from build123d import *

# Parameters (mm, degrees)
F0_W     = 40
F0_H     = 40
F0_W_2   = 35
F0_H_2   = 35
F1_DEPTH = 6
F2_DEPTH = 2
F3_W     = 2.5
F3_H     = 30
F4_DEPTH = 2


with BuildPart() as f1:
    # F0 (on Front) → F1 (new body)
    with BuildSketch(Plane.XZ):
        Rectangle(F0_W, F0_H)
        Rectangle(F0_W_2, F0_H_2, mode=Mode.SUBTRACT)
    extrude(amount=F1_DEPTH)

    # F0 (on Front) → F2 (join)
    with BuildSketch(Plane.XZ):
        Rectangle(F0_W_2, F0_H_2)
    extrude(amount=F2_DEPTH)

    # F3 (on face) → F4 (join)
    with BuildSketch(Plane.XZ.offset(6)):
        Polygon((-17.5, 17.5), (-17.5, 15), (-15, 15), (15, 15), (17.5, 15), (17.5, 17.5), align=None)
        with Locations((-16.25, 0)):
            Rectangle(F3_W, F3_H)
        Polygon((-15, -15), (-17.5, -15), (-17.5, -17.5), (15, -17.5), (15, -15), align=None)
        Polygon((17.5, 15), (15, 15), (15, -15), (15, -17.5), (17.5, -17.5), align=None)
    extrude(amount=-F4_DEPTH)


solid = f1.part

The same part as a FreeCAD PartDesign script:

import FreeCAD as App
import Part
import Sketcher
Q = App.Units.Quantity


def add_polygon(sketch, points):
    """Adds a closed chain of lines whose ends are joined by coincident constraints."""
    first, n = sketch.GeometryCount, len(points)
    for a, b in zip(points, points[1:] + points[:1]):
        sketch.addGeometry(Part.LineSegment(App.Vector(*a, 0), App.Vector(*b, 0)), False)
    for i in range(n):
        sketch.addConstraint(Sketcher.Constraint("Coincident", first + i, 2, first + (i + 1) % n, 1))

doc = App.newDocument("Part")
params = doc.addObject("Spreadsheet::Sheet", "Params")
for row, (alias, value) in enumerate([
    ("sketch1_width", "40 mm"),
    ("sketch1_width2", "35 mm"),
    ("pad1_length", "6 mm"),
    ("sketch2_width", "35 mm"),
    ("pad2_length", "2 mm"),
    ("sketch3_width", "35 mm"),
    ("sketch3_width2", "30 mm"),
    ("pad3_length", "2 mm"),
], start=1):
    params.set(f"A{row}", alias)
    params.set(f"B{row}", "=" + value)
    params.setAlias(f"B{row}", alias)

body = doc.addObject("PartDesign::Body", "Body")

# Sketch on XZ plane
sketch1 = body.newObject("Sketcher::SketchObject", "Sketch")
sketch1.AttachmentSupport = (doc.getObject("XZ_Plane"), [""])
sketch1.MapMode = "FlatFace"
add_polygon(sketch1, [(-20, 20), (-20, -20), (20, -20), (20, 20)])  # lines 0-3
add_polygon(sketch1, [(18, -18), (-18, -18), (-18, 18), (18, 18)])  # lines 4-7
sketch1.addConstraint(Sketcher.Constraint("Vertical", 0))
sketch1.addConstraint(Sketcher.Constraint("Horizontal", 1))
sketch1.addConstraint(Sketcher.Constraint("Vertical", 2))
sketch1.addConstraint(Sketcher.Constraint("Horizontal", 3))
sketch1.addConstraint(Sketcher.Constraint("Horizontal", 4))
sketch1.addConstraint(Sketcher.Constraint("Vertical", 5))
sketch1.addConstraint(Sketcher.Constraint("Horizontal", 6))
sketch1.addConstraint(Sketcher.Constraint("Vertical", 7))
sketch1.addConstraint(Sketcher.Constraint("Symmetric", 0, 2, 2, 2, -1, 1))
sketch1.addConstraint(Sketcher.Constraint("Symmetric", 4, 2, 6, 2, -1, 1))
sketch1.addConstraint(Sketcher.Constraint("Equal", 3, 0))
sketch1.addConstraint(Sketcher.Constraint("Equal", 6, 5))
sketch1.addConstraint(Sketcher.Constraint("DistanceX", 1, 1, 1, 2, Q("40 mm")))
sketch1.addConstraint(Sketcher.Constraint("DistanceX", 4, 2, 4, 1, Q("35 mm")))
sketch1.setExpression("Constraints[20]", "Params.sketch1_width")
sketch1.setExpression("Constraints[21]", "Params.sketch1_width2")
pad1 = body.newObject("PartDesign::Pad", "Pad")
pad1.Profile = sketch1
pad1.setExpression("Length", "Params.pad1_length")

# Sketch on XZ plane
sketch2 = body.newObject("Sketcher::SketchObject", "Sketch001")
sketch2.AttachmentSupport = (doc.getObject("XZ_Plane"), [""])
sketch2.MapMode = "FlatFace"
add_polygon(sketch2, [(-18, 18), (-18, -18), (18, -18), (18, 18)])  # lines 0-3
sketch2.addConstraint(Sketcher.Constraint("Vertical", 0))
sketch2.addConstraint(Sketcher.Constraint("Horizontal", 1))
sketch2.addConstraint(Sketcher.Constraint("Vertical", 2))
sketch2.addConstraint(Sketcher.Constraint("Horizontal", 3))
sketch2.addConstraint(Sketcher.Constraint("Symmetric", 0, 2, 2, 2, -1, 1))
sketch2.addConstraint(Sketcher.Constraint("Equal", 3, 0))
sketch2.addConstraint(Sketcher.Constraint("DistanceX", 1, 1, 1, 2, Q("35 mm")))
sketch2.setExpression("Constraints[10]", "Params.sketch2_width")
pad2 = body.newObject("PartDesign::Pad", "Pad001")
pad2.Profile = sketch2
pad2.setExpression("Length", "Params.pad2_length")

# Sketch on XZ plane
sketch3 = body.newObject("Sketcher::SketchObject", "Sketch002")
sketch3.AttachmentSupport = (doc.getObject("XZ_Plane"), [""])
sketch3.MapMode = "FlatFace"
sketch3.AttachmentOffset = App.Placement(App.Vector(0, 0, 6), App.Rotation())
add_polygon(sketch3, [(-18, 18), (-18, -18), (18, -18), (18, 18)])  # lines 0-3
add_polygon(sketch3, [(15, -15), (-15, -15), (-15, 15), (15, 15)])  # lines 4-7
sketch3.addConstraint(Sketcher.Constraint("Vertical", 0))
sketch3.addConstraint(Sketcher.Constraint("Horizontal", 1))
sketch3.addConstraint(Sketcher.Constraint("Vertical", 2))
sketch3.addConstraint(Sketcher.Constraint("Horizontal", 3))
sketch3.addConstraint(Sketcher.Constraint("Horizontal", 4))
sketch3.addConstraint(Sketcher.Constraint("Vertical", 5))
sketch3.addConstraint(Sketcher.Constraint("Horizontal", 6))
sketch3.addConstraint(Sketcher.Constraint("Vertical", 7))
sketch3.addConstraint(Sketcher.Constraint("Symmetric", 0, 2, 2, 2, -1, 1))
sketch3.addConstraint(Sketcher.Constraint("Symmetric", 4, 2, 6, 2, -1, 1))
sketch3.addConstraint(Sketcher.Constraint("Equal", 3, 0))
sketch3.addConstraint(Sketcher.Constraint("Equal", 6, 5))
sketch3.addConstraint(Sketcher.Constraint("DistanceX", 1, 1, 1, 2, Q("35 mm")))
sketch3.addConstraint(Sketcher.Constraint("DistanceX", 4, 2, 4, 1, Q("30 mm")))
sketch3.setExpression("Constraints[20]", "Params.sketch3_width")
sketch3.setExpression("Constraints[21]", "Params.sketch3_width2")
pad3 = body.newObject("PartDesign::Pad", "Pad002")
pad3.Profile = sketch3
pad3.setExpression("Length", "Params.pad3_length")
pad3.Reversed = True

doc.recompute()
